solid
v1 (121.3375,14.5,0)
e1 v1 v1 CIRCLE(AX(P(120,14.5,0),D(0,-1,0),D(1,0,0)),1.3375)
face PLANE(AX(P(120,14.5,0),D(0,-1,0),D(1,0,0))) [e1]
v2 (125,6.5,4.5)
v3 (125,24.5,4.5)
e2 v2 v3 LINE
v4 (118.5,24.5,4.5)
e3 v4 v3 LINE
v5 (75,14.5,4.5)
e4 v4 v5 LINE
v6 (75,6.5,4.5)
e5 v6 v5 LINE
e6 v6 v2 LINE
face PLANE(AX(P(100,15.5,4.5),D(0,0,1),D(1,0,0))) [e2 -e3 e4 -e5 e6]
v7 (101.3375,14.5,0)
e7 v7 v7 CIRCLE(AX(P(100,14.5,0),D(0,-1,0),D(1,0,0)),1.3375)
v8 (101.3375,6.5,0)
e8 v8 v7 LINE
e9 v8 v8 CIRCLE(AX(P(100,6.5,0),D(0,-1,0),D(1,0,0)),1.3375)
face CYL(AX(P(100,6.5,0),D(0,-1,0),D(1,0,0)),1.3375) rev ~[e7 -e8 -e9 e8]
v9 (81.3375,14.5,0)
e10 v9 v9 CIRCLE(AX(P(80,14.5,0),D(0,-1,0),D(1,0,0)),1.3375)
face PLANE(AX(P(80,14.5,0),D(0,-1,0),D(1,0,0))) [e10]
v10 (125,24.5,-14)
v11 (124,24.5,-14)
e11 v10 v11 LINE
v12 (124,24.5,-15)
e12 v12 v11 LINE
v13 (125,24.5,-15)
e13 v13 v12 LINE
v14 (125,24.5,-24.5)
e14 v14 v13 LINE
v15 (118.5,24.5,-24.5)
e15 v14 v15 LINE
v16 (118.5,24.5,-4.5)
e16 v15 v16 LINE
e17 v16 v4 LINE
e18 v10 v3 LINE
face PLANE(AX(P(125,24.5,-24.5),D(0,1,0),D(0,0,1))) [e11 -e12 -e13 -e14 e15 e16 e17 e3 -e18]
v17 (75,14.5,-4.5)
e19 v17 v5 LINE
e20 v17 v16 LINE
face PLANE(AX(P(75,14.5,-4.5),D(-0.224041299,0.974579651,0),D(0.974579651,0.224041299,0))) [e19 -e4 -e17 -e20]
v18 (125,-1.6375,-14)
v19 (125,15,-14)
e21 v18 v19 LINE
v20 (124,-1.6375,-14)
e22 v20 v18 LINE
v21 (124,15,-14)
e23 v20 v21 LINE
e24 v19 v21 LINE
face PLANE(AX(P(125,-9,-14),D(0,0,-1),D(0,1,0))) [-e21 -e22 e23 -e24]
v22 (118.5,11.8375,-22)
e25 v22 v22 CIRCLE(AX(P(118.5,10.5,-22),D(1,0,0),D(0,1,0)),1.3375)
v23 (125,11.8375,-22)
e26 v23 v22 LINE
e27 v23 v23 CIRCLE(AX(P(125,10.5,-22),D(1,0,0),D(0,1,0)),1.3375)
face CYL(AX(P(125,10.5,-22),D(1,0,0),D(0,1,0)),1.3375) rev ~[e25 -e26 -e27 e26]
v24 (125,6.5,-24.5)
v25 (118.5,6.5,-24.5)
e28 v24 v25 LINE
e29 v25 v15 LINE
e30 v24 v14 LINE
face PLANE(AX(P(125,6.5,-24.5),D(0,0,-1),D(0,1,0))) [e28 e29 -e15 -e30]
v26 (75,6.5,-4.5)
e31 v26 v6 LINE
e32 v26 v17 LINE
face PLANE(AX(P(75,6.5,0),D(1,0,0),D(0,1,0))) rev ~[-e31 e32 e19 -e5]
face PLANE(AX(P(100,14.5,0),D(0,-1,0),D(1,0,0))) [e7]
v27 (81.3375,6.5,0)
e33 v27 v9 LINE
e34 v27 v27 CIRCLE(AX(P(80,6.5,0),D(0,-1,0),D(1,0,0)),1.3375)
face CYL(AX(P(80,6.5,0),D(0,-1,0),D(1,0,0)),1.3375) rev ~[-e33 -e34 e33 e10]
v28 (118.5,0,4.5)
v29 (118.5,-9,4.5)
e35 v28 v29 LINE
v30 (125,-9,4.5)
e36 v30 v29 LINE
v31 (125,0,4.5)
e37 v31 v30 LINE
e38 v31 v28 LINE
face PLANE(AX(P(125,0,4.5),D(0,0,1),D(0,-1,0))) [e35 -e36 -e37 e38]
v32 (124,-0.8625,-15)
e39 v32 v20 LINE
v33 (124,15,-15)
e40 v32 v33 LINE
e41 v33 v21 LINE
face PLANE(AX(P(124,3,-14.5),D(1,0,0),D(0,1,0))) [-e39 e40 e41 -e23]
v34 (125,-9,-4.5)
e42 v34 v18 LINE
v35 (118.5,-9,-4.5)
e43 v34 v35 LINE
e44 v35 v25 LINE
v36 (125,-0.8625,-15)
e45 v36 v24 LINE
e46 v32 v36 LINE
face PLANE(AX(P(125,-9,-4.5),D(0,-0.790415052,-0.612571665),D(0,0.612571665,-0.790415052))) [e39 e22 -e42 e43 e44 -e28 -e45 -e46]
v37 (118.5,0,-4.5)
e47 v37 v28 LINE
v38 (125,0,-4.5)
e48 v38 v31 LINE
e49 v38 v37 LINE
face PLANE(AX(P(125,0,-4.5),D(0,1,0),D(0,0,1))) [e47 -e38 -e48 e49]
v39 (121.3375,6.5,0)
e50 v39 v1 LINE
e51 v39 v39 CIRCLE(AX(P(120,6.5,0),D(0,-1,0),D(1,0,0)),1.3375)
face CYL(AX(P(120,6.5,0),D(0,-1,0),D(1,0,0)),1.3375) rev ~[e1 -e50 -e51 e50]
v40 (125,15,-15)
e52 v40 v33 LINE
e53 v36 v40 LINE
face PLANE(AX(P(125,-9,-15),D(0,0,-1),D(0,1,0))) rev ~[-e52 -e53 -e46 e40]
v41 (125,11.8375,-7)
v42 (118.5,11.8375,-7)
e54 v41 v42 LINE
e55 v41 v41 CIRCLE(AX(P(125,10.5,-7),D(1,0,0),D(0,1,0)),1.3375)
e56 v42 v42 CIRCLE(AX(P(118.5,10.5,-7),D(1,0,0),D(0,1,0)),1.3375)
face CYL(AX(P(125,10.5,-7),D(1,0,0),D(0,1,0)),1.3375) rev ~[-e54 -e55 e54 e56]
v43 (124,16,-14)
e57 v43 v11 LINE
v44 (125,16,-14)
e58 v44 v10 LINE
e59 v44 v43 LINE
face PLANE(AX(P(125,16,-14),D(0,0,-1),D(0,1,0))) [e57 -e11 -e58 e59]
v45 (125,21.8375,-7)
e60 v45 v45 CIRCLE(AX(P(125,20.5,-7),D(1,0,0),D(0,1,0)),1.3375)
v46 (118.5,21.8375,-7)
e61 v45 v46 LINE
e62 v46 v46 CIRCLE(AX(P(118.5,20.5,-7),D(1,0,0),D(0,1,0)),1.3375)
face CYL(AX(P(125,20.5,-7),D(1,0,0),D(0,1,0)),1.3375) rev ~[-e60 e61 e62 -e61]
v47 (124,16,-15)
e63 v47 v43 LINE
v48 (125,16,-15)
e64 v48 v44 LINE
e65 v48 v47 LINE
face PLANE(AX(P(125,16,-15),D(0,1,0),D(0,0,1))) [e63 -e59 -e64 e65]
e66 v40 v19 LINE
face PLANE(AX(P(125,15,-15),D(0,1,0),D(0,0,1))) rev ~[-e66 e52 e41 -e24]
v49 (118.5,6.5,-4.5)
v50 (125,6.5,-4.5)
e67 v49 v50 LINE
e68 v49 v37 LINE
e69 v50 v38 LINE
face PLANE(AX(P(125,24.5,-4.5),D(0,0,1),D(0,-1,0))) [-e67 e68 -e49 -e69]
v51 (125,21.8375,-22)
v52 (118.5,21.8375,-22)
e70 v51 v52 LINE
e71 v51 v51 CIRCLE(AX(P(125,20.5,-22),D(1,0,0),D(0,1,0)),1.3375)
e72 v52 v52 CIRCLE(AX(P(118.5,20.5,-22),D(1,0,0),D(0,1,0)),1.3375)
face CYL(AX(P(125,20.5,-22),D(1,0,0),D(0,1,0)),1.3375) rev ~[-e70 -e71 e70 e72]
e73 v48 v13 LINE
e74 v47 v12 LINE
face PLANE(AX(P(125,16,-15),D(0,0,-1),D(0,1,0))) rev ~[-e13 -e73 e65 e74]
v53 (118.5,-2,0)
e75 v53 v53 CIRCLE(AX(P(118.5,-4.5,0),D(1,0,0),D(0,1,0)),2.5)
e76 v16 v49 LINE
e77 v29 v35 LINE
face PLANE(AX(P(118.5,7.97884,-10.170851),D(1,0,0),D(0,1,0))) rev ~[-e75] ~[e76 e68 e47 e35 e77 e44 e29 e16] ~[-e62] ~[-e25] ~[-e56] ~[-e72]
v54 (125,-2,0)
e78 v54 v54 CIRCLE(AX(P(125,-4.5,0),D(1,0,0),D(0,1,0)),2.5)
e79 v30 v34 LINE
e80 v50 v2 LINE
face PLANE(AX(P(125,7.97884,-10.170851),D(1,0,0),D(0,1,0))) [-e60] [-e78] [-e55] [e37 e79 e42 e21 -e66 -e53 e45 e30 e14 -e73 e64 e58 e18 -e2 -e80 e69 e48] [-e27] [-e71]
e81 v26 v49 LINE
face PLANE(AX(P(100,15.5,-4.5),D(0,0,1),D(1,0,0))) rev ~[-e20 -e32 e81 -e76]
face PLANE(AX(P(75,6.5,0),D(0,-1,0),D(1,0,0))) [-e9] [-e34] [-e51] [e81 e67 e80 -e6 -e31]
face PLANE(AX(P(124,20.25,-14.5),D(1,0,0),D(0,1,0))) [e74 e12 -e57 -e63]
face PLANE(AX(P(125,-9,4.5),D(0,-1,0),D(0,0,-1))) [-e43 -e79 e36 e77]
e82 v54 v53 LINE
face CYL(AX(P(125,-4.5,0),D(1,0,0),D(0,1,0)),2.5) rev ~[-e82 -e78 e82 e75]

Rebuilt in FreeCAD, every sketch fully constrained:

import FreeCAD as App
import Part
import Sketcher
from FreeCAD import Vector
Q = App.Units.Quantity


def add_polygon(sketch, points):
    """Adds a closed chain of lines whose ends are joined by coincident constraints."""
    first, n = sketch.GeometryCount, len(points)
    for a, b in zip(points, points[1:] + points[:1]):
        sketch.addGeometry(Part.LineSegment(App.Vector(*a, 0), App.Vector(*b, 0)), False)
    for i in range(n):
        sketch.addConstraint(Sketcher.Constraint("Coincident", first + i, 2, first + (i + 1) % n, 1))

doc = App.newDocument("Part")
body = doc.addObject("PartDesign::Body", "Body")

sketch1 = doc.addObject("Sketcher::SketchObject", "Sketch")
body.addObject(sketch1)
sketch1.AttachmentSupport = (doc.XY_Plane, [""])
sketch1.MapMode = "FlatFace"
add_polygon(sketch1, [(0, 18), (0, 0), (50, 0), (50, 18)])
sketch1.addConstraint([
    Sketcher.Constraint("Vertical", 0),
    Sketcher.Constraint("Horizontal", 1),
    Sketcher.Constraint("Vertical", 2),
    Sketcher.Constraint("Horizontal", 3),
    Sketcher.Constraint("Coincident", 0, 2, -1, 1),
    Sketcher.Constraint("DistanceX", 1, 1, 1, 2, Q("50 mm")),
    Sketcher.Constraint("DistanceY", 0, 2, 0, 1, Q("18 mm")),
])
pad1 = doc.addObject("PartDesign::Pad", "Pad")
body.addObject(pad1)
pad1.Profile = sketch1
pad1.Length = 9
pad1.Midplane = True

sketch2 = doc.addObject("Sketcher::SketchObject", "Sketch001")
body.addObject(sketch2)
sketch2.AttachmentSupport = (doc.XZ_Plane, [""])
sketch2.MapMode = "FlatFace"
sketch2.addGeometry([
    Part.Circle(Vector(5, 0, 0), Vector(0, 0, 1), 1.3),
    Part.Circle(Vector(25, 0, 0), Vector(0, 0, 1), 1.3),
    Part.Circle(Vector(45, 0, 0), Vector(0, 0, 1), 1.3),
], False)
sketch2.addConstraint([
    Sketcher.Constraint("Equal", 0, 1),
    Sketcher.Constraint("Equal", 1, 2),
    Sketcher.Constraint("PointOnObject", 0, 3, -1),
    Sketcher.Constraint("PointOnObject", 1, 3, -1),
    Sketcher.Constraint("PointOnObject", 2, 3, -1),
    Sketcher.Constraint("Diameter", 0, Q("2.675 mm")),
    Sketcher.Constraint("DistanceX", -1, 1, 0, 3, Q("5 mm")),
    Sketcher.Constraint("DistanceX", -1, 1, 1, 3, Q("25 mm")),
    Sketcher.Constraint("DistanceX", -1, 1, 2, 3, Q("45 mm")),
])
pocket1 = doc.addObject("PartDesign::Pocket", "Pocket")
body.addObject(pocket1)
pocket1.Profile = sketch2
pocket1.Length = 8

sketch3 = doc.addObject("Sketcher::SketchObject", "Sketch002")
body.addObject(sketch3)
sketch3.AttachmentSupport = (doc.XY_Plane, [""])
sketch3.MapMode = "FlatFace"
sketch3.AttachmentOffset = App.Placement(Vector(0, 0, -4.5), App.Rotation())
add_polygon(sketch3, [(44, 18), (0, 8), (0, 18)])
sketch3.addConstraint([
    Sketcher.Constraint("Vertical", 1),
    Sketcher.Constraint("Horizontal", 2),
    Sketcher.Constraint("PointOnObject", 0, 2, -2),
    Sketcher.Constraint("DistanceY", 1, 1, 1, 2, Q("10 mm")),
    Sketcher.Constraint("DistanceX", 2, 1, 2, 2, Q("43.5 mm")),
    Sketcher.Constraint("DistanceY", -1, 1, 0, 2, Q("8 mm")),
])
pocket2 = doc.addObject("PartDesign::Pocket", "Pocket001")
body.addObject(pocket2)
pocket2.Profile = sketch3
pocket2.Type = "ThroughAll"
pocket2.Reversed = True

sketch4 = doc.addObject("Sketcher::SketchObject", "Sketch003")
body.addObject(sketch4)
sketch4.AttachmentSupport = (doc.YZ_Plane, [""])
sketch4.MapMode = "FlatFace"
sketch4.AttachmentOffset = App.Placement(Vector(0, 0, 50), App.Rotation())
add_polygon(sketch4, [(18, -4.5), (-6.5, -4.5), (-6.5, 4.5), (-15.5, 4.5), (-15.5, -4.5), (0, -24.5), (18, -24.5)])
sketch4.addGeometry(Part.Circle(Vector(4, -22, 0), Vector(0, 0, 1), 1.3), False)
sketch4.addGeometry(Part.Circle(Vector(14, -22, 0), Vector(0, 0, 1), 1.3), False)
sketch4.addGeometry(Part.Circle(Vector(-11, 0, 0), Vector(0, 0, 1), 2.5), False)
sketch4.addGeometry(Part.Circle(Vector(4, -7, 0), Vector(0, 0, 1), 1.3), False)
sketch4.addGeometry(Part.Circle(Vector(14, -7, 0), Vector(0, 0, 1), 1.3), False)
sketch4.addConstraint([
    Sketcher.Constraint("Horizontal", 0),
    Sketcher.Constraint("Vertical", 1),
    Sketcher.Constraint("Horizontal", 2),
    Sketcher.Constraint("Vertical", 3),
    Sketcher.Constraint("Horizontal", 5),
    Sketcher.Constraint("Vertical", 6),
    Sketcher.Constraint("Equal", 7, 8),
    Sketcher.Constraint("Equal", 8, 10),
    Sketcher.Constraint("Equal", 10, 11),
    Sketcher.Constraint("PointOnObject", 9, 3, -1),
    Sketcher.Constraint("PointOnObject", 4, 2, -2),
    Sketcher.Constraint("Horizontal", 7, 3, 8, 3),
    Sketcher.Constraint("Horizontal", 10, 3, 11, 3),
    Sketcher.Constraint("Horizontal", 0, 2, 3, 2),
    Sketcher.Constraint("Vertical", 7, 3, 10, 3),
    Sketcher.Constraint("Vertical", 8, 3, 11, 3),
    Sketcher.Constraint("Equal", 2, 1),
    Sketcher.Constraint("Diameter", 9, Q("5 mm")),
    Sketcher.Constraint("DistanceX", 2, 2, 2, 1, Q("9 mm")),
    Sketcher.Constraint("DistanceX", 5, 1, 5, 2, Q("18 mm")),
    Sketcher.Constraint("DistanceY", 6, 1, 6, 2, Q("20 mm")),
    Sketcher.Constraint("Diameter", 7, Q("2.675 mm")),
    Sketcher.Constraint("DistanceX", 0, 2, 0, 1, Q("24.5 mm")),
    Sketcher.Constraint("DistanceX", -1, 1, 7, 3, Q("4 mm")),
    Sketcher.Constraint("DistanceY", 7, 3, -1, 1, Q("22 mm")),
    Sketcher.Constraint("DistanceX", -1, 1, 8, 3, Q("14 mm")),
    Sketcher.Constraint("DistanceX", 9, 3, -1, 1, Q("11 mm")),
    Sketcher.Constraint("DistanceY", 10, 3, -1, 1, Q("7 mm")),
    Sketcher.Constraint("DistanceY", 0, 2, -1, 1, Q("4.5 mm")),
])
pad2 = doc.addObject("PartDesign::Pad", "Pad001")
body.addObject(pad2)
pad2.Profile = sketch4
pad2.Length = 6.5
pad2.Reversed = True

sketch5 = doc.addObject("Sketcher::SketchObject", "Sketch004")
body.addObject(sketch5)
sketch5.AttachmentSupport = (doc.YZ_Plane, [""])
sketch5.MapMode = "FlatFace"
sketch5.AttachmentOffset = App.Placement(Vector(0, 0, 50), App.Rotation())
add_polygon(sketch5, [(9.5, -14), (9.5, -15), (18, -15), (18, -14)])
add_polygon(sketch5, [(-15.5, -14), (-15.5, -15), (8.5, -15), (8.5, -14)])
sketch5.addConstraint([
    Sketcher.Constraint("Vertical", 0),
    Sketcher.Constraint("Horizontal", 1),
    Sketcher.Constraint("Vertical", 2),
    Sketcher.Constraint("Horizontal", 3),
    Sketcher.Constraint("Vertical", 4),
    Sketcher.Constraint("Horizontal", 5),
    Sketcher.Constraint("Vertical", 6),
    Sketcher.Constraint("Horizontal", 7),
    Sketcher.Constraint("Horizontal", 1, 2, 4, 2),
    Sketcher.Constraint("Horizontal", 3, 2, 6, 2),
    Sketcher.Constraint("DistanceX", 5, 1, 5, 2, Q("24 mm")),
    Sketcher.Constraint("DistanceY", 0, 2, 0, 1, Q("1 mm")),
    Sketcher.Constraint("DistanceX", 1, 1, 1, 2, Q("8.5 mm")),
    Sketcher.Constraint("DistanceY", 0, 2, -1, 1, Q("15 mm")),
    Sketcher.Constraint("DistanceX", -1, 1, 1, 2, Q("18 mm")),
    Sketcher.Constraint("DistanceX", 4, 2, 0, 2, Q("25 mm")),
])
pocket3 = doc.addObject("PartDesign::Pocket", "Pocket002")
body.addObject(pocket3)
pocket3.Profile = sketch5
pocket3.Length = 1
body2 = doc.addObject("PartDesign::Body", "Body001")
doc.recompute()

body.Placement = App.Placement(Vector(75, 6.5, 0), App.Rotation(Vector(0, 0, 1), 0))
boolean = doc.addObject("PartDesign::Boolean", "Boolean")
body2.addObject(boolean)
boolean.Type = "Fuse"
boolean.addObjects([body])

doc.recompute()
